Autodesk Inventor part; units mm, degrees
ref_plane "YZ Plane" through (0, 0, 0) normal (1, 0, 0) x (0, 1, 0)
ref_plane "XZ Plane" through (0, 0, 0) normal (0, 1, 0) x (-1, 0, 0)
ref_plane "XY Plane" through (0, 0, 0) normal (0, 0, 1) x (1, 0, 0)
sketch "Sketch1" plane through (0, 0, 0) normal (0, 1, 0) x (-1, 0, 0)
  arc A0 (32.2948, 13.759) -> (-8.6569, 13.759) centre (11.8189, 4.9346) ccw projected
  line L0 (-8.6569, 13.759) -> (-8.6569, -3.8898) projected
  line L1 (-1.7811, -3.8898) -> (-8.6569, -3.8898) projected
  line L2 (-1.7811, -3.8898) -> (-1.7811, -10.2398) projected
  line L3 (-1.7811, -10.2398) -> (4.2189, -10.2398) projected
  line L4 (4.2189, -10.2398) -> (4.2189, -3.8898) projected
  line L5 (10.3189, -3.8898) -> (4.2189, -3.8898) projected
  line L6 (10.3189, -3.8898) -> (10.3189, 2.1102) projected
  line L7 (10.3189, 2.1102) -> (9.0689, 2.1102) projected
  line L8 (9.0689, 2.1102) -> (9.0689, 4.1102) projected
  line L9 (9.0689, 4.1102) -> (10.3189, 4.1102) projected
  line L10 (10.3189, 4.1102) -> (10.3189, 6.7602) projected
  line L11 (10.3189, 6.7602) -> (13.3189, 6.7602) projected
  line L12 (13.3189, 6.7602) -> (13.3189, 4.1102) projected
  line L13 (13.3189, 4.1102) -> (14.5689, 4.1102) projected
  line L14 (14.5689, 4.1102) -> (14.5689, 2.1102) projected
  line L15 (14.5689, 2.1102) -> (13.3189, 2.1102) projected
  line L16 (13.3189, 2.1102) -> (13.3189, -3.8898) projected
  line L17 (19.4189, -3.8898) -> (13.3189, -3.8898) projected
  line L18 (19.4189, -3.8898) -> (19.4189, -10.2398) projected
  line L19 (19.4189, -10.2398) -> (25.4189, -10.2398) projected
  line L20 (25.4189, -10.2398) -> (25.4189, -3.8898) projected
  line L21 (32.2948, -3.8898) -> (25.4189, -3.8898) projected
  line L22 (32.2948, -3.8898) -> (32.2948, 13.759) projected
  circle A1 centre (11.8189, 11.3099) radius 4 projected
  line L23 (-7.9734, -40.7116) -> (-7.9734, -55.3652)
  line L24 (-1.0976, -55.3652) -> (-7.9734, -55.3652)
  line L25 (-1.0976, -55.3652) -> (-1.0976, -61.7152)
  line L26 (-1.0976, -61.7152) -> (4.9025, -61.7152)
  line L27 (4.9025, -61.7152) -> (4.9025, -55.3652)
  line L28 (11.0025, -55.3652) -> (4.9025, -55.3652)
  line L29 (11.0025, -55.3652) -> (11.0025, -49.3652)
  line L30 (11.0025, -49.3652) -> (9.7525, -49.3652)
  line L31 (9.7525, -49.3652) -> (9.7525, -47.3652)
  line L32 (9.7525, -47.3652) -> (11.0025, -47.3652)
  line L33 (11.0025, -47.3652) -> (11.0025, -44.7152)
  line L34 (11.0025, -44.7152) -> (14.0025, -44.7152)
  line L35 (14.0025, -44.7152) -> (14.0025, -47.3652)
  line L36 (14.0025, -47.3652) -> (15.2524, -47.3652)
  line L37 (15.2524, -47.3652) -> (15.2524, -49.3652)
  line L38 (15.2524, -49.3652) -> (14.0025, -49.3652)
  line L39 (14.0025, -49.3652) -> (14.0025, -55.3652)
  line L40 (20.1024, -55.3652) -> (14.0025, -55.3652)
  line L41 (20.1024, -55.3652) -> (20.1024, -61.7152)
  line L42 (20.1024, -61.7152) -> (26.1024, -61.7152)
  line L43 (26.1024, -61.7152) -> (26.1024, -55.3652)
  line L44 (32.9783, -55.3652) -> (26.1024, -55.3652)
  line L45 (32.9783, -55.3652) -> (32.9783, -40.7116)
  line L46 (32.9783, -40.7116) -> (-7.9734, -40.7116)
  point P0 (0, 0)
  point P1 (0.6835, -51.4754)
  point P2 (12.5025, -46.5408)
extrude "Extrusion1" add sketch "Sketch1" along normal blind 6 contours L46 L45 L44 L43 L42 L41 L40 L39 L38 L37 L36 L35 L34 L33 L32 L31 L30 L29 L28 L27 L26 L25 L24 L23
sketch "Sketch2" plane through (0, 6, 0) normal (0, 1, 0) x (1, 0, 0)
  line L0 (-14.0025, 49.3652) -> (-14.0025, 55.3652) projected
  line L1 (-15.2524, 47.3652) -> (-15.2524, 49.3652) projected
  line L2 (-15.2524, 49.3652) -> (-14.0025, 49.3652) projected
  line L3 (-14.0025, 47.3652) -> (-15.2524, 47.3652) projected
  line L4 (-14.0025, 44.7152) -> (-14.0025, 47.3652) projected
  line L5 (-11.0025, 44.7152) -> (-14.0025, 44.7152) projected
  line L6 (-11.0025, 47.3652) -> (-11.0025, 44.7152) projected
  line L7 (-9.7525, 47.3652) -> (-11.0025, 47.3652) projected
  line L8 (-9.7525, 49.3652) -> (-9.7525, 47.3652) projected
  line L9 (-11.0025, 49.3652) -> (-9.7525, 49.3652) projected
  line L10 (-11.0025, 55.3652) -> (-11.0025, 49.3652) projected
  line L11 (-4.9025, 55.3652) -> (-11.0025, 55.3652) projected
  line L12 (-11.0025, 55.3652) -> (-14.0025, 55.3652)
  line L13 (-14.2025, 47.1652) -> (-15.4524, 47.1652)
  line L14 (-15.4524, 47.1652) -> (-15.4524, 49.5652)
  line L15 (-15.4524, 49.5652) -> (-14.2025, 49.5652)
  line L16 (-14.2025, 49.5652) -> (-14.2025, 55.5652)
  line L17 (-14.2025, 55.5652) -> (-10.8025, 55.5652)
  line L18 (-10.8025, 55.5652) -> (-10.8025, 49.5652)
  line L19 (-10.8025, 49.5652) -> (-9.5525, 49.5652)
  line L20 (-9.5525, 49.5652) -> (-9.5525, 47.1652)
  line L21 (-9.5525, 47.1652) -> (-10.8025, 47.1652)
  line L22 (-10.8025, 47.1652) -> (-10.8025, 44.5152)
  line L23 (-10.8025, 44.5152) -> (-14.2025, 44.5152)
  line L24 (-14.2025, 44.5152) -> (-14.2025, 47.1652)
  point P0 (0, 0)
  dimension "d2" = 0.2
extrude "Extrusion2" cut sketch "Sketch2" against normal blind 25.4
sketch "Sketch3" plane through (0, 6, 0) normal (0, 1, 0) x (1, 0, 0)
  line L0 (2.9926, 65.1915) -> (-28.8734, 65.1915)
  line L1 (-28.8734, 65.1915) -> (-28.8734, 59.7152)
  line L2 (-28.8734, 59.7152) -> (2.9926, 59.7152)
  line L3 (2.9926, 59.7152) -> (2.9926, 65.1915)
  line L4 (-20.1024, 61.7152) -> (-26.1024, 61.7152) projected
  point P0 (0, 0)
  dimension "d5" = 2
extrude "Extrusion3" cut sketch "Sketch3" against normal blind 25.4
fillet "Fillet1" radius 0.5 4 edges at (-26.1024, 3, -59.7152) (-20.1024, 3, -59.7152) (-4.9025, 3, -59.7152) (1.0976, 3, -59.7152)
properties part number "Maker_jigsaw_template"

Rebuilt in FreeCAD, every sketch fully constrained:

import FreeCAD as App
import Part
import Sketcher
from FreeCAD import Vector
Q = App.Units.Quantity


def edges_at(feature, points):
    """Names of the edges that pass closest to the given points."""
    edges = feature.Shape.Edges
    near = lambda p: min(range(len(edges)), key=lambda i: edges[i].distToShape(Part.Vertex(*p))[0])
    return sorted({f"Edge{near(p) + 1}" for p in points})

doc = App.newDocument("Part")
body = doc.addObject("PartDesign::Body", "Body")

# Sketch on XZ plane
sketch1 = body.newObject("Sketcher::SketchObject", "Sketch")
sketch1.AttachmentSupport = (doc.getObject("XZ_Plane"), [""])
sketch1.MapMode = "FlatFace"
sketch1.addGeometry([
    Part.LineSegment(Vector(-33, -40.7, 0), Vector(8, -40.7, 0)),  # 0
    Part.LineSegment(Vector(8, -40.7, 0), Vector(8, -55.4, 0)),  # 1
    Part.LineSegment(Vector(8, -55.4, 0), Vector(1.1, -55.4, 0)),  # 2
    Part.LineSegment(Vector(1.1, -55.4, 0), Vector(1.1, -61.7, 0)),  # 3
    Part.LineSegment(Vector(1.1, -61.7, 0), Vector(-4.9, -61.7, 0)),  # 4
    Part.LineSegment(Vector(-4.9, -61.7, 0), Vector(-4.9, -55.4, 0)),  # 5
    Part.LineSegment(Vector(-4.9, -55.4, 0), Vector(-11, -55.4, 0)),  # 6
    Part.LineSegment(Vector(-11, -55.4, 0), Vector(-11, -49.4, 0)),  # 7
    Part.LineSegment(Vector(-11, -49.4, 0), Vector(-9.8, -49.4, 0)),  # 8
    Part.LineSegment(Vector(-9.8, -49.4, 0), Vector(-9.8, -47.4, 0)),  # 9
    Part.LineSegment(Vector(-9.8, -47.4, 0), Vector(-11, -47.4, 0)),  # 10
    Part.LineSegment(Vector(-11, -47.4, 0), Vector(-11, -44.7, 0)),  # 11
    Part.LineSegment(Vector(-11, -44.7, 0), Vector(-14, -44.7, 0)),  # 12
    Part.LineSegment(Vector(-14, -44.7, 0), Vector(-14, -47.4, 0)),  # 13
    Part.LineSegment(Vector(-14, -47.4, 0), Vector(-15.3, -47.4, 0)),  # 14
    Part.LineSegment(Vector(-15.3, -47.4, 0), Vector(-15.3, -49.4, 0)),  # 15
    Part.LineSegment(Vector(-15.3, -49.4, 0), Vector(-14, -49.4, 0)),  # 16
    Part.LineSegment(Vector(-14, -49.4, 0), Vector(-14, -55.4, 0)),  # 17
    Part.LineSegment(Vector(-14, -55.4, 0), Vector(-20.1, -55.4, 0)),  # 18
    Part.LineSegment(Vector(-20.1, -55.4, 0), Vector(-20.1, -61.7, 0)),  # 19
    Part.LineSegment(Vector(-20.1, -61.7, 0), Vector(-26.1, -61.7, 0)),  # 20
    Part.LineSegment(Vector(-26.1, -61.7, 0), Vector(-26.1, -55.4, 0)),  # 21
    Part.LineSegment(Vector(-26.1, -55.4, 0), Vector(-33, -55.4, 0)),  # 22
    Part.LineSegment(Vector(-33, -55.4, 0), Vector(-33, -40.7, 0)),  # 23
], False)
sketch1.addConstraint([
    Sketcher.Constraint("Coincident", 0, 2, 1, 1),
    Sketcher.Constraint("Coincident", 1, 2, 2, 1),
    Sketcher.Constraint("Coincident", 2, 2, 3, 1),
    Sketcher.Constraint("Coincident", 3, 2, 4, 1),
    Sketcher.Constraint("Coincident", 4, 2, 5, 1),
    Sketcher.Constraint("Coincident", 5, 2, 6, 1),
    Sketcher.Constraint("Coincident", 6, 2, 7, 1),
    Sketcher.Constraint("Coincident", 7, 2, 8, 1),
    Sketcher.Constraint("Coincident", 8, 2, 9, 1),
    Sketcher.Constraint("Coincident", 9, 2, 10, 1),
    Sketcher.Constraint("Coincident", 10, 2, 11, 1),
    Sketcher.Constraint("Coincident", 11, 2, 12, 1),
    Sketcher.Constraint("Coincident", 12, 2, 13, 1),
    Sketcher.Constraint("Coincident", 13, 2, 14, 1),
    Sketcher.Constraint("Coincident", 14, 2, 15, 1),
    Sketcher.Constraint("Coincident", 15, 2, 16, 1),
    Sketcher.Constraint("Coincident", 16, 2, 17, 1),
    Sketcher.Constraint("Coincident", 17, 2, 18, 1),
    Sketcher.Constraint("Coincident", 18, 2, 19, 1),
    Sketcher.Constraint("Coincident", 19, 2, 20, 1),
    Sketcher.Constraint("Coincident", 20, 2, 21, 1),
    Sketcher.Constraint("Coincident", 21, 2, 22, 1),
    Sketcher.Constraint("Coincident", 22, 2, 23, 1),
    Sketcher.Constraint("Coincident", 23, 2, 0, 1),
    Sketcher.Constraint("Horizontal", 0),
    Sketcher.Constraint("Vertical", 1),
    Sketcher.Constraint("Horizontal", 2),
    Sketcher.Constraint("Vertical", 3),
    Sketcher.Constraint("Horizontal", 4),
    Sketcher.Constraint("Vertical", 5),
    Sketcher.Constraint("Horizontal", 6),
    Sketcher.Constraint("Vertical", 7),
    Sketcher.Constraint("Horizontal", 8),
    Sketcher.Constraint("Vertical", 9),
    Sketcher.Constraint("Horizontal", 10),
    Sketcher.Constraint("Vertical", 11),
    Sketcher.Constraint("Horizontal", 12),
    Sketcher.Constraint("Vertical", 13),
    Sketcher.Constraint("Horizontal", 14),
    Sketcher.Constraint("Vertical", 15),
    Sketcher.Constraint("Horizontal", 16),
    Sketcher.Constraint("Vertical", 17),
    Sketcher.Constraint("Horizontal", 18),
    Sketcher.Constraint("Vertical", 19),
    Sketcher.Constraint("Horizontal", 20),
    Sketcher.Constraint("Vertical", 21),
    Sketcher.Constraint("Horizontal", 22),
    Sketcher.Constraint("Vertical", 23),
    Sketcher.Constraint("Horizontal", 2, 2, 5, 2),
    Sketcher.Constraint("Horizontal", 10, 2, 13, 2),
    Sketcher.Constraint("Horizontal", 8, 2, 15, 2),
    Sketcher.Constraint("Horizontal", 6, 2, 17, 2),
    Sketcher.Constraint("Horizontal", 4, 2, 19, 2),
    Sketcher.Constraint("Horizontal", 18, 2, 21, 2),
    Sketcher.Constraint("Vertical", 7, 2, 10, 2),
    Sketcher.Constraint("Vertical", 13, 2, 16, 2),
    Sketcher.Constraint("Equal", 10, 14),
    Sketcher.Constraint("Equal", 6, 18),
    Sketcher.Constraint("Equal", 4, 20),
    Sketcher.Constraint("Equal", 2, 22),
    Sketcher.Constraint("Equal", 20, 7),
    Sketcher.Constraint("DistanceX", 4, 2, 4, 1, Q("6 mm")),
    Sketcher.Constraint("DistanceX", 12, 2, 12, 1, Q("3 mm")),
    Sketcher.Constraint("DistanceY", 9, 1, 9, 2, Q("2 mm")),
    Sketcher.Constraint("DistanceX", 6, 2, 6, 1, Q("6.1 mm")),
    Sketcher.Constraint("DistanceX", 8, 1, 8, 2, Q("1.25 mm")),
    Sketcher.Constraint("DistanceY", 3, 2, 3, 1, Q("6.35 mm")),
    Sketcher.Constraint("DistanceY", 11, 1, 11, 2, Q("2.65 mm")),
    Sketcher.Constraint("DistanceX", 22, 2, 22, 1, Q("6.876 mm")),
    Sketcher.Constraint("DistanceY", 1, 2, 1, 1, Q("14.6536 mm")),
    Sketcher.Constraint("DistanceX", -1, 1, 0, 2, Q("7.9734 mm")),
    Sketcher.Constraint("DistanceY", 0, 2, -1, 1, Q("40.7116 mm")),
])
pad1 = body.newObject("PartDesign::Pad", "Pad")
pad1.Profile = sketch1
pad1.Length = 6
pad1.Reversed = True

# Sketch on XZ plane
sketch2 = body.newObject("Sketcher::SketchObject", "Sketch001")
sketch2.AttachmentSupport = (doc.getObject("XZ_Plane"), [""])
sketch2.MapMode = "FlatFace"
sketch2.AttachmentOffset = App.Placement(Vector(0, 0, -6), App.Rotation())
sketch2.addGeometry([
    Part.LineSegment(Vector(-10.8, -49.57, 0), Vector(-10.8, -55.37, 0)),  # 0
    Part.LineSegment(Vector(-10.8, -55.37, 0), Vector(-10.8, -55.57, 0)),  # 1
    Part.LineSegment(Vector(-10.8, -55.57, 0), Vector(-14.2, -55.57, 0)),  # 2
    Part.LineSegment(Vector(-14.2, -55.57, 0), Vector(-14.2, -49.57, 0)),  # 3
    Part.LineSegment(Vector(-14.2, -49.57, 0), Vector(-15.45, -49.57, 0)),  # 4
    Part.LineSegment(Vector(-15.45, -49.57, 0), Vector(-15.45, -47.17, 0)),  # 5
    Part.LineSegment(Vector(-15.45, -47.17, 0), Vector(-14.2, -47.17, 0)),  # 6
    Part.LineSegment(Vector(-14.2, -47.17, 0), Vector(-14.2, -44.52, 0)),  # 7
    Part.LineSegment(Vector(-14.2, -44.52, 0), Vector(-10.8, -44.52, 0)),  # 8
    Part.LineSegment(Vector(-10.8, -44.52, 0), Vector(-10.8, -47.17, 0)),  # 9
    Part.LineSegment(Vector(-10.8, -47.17, 0), Vector(-9.55, -47.17, 0)),  # 10
    Part.LineSegment(Vector(-9.55, -47.17, 0), Vector(-9.55, -49.57, 0)),  # 11
    Part.LineSegment(Vector(-9.55, -49.57, 0), Vector(-10.8, -49.57, 0)),  # 12
    Part.LineSegment(Vector(-15.25, -49.37, 0), Vector(-14, -49.37, 0)),  # 13
    Part.LineSegment(Vector(-14, -49.37, 0), Vector(-14, -55.37, 0)),  # 14
    Part.LineSegment(Vector(-14, -55.37, 0), Vector(-11, -55.37, 0)),  # 15
    Part.LineSegment(Vector(-11, -55.37, 0), Vector(-11, -49.37, 0)),  # 16
    Part.LineSegment(Vector(-11, -49.37, 0), Vector(-9.75, -49.37, 0)),  # 17
    Part.LineSegment(Vector(-9.75, -49.37, 0), Vector(-9.75, -47.37, 0)),  # 18
    Part.LineSegment(Vector(-9.75, -47.37, 0), Vector(-11, -47.37, 0)),  # 19
    Part.LineSegment(Vector(-11, -47.37, 0), Vector(-11, -44.72, 0)),  # 20
    Part.LineSegment(Vector(-11, -44.72, 0), Vector(-14, -44.72, 0)),  # 21
    Part.LineSegment(Vector(-14, -44.72, 0), Vector(-14, -47.37, 0)),  # 22
    Part.LineSegment(Vector(-14, -47.37, 0), Vector(-15.25, -47.37, 0)),  # 23
    Part.LineSegment(Vector(-15.25, -47.37, 0), Vector(-15.25, -49.37, 0)),  # 24
], False)
sketch2.addConstraint([
    Sketcher.Constraint("Coincident", 0, 2, 1, 1),
    Sketcher.Constraint("Coincident", 1, 2, 2, 1),
    Sketcher.Constraint("Coincident", 2, 2, 3, 1),
    Sketcher.Constraint("Coincident", 3, 2, 4, 1),
    Sketcher.Constraint("Coincident", 4, 2, 5, 1),
    Sketcher.Constraint("Coincident", 5, 2, 6, 1),
    Sketcher.Constraint("Coincident", 6, 2, 7, 1),
    Sketcher.Constraint("Coincident", 7, 2, 8, 1),
    Sketcher.Constraint("Coincident", 8, 2, 9, 1),
    Sketcher.Constraint("Coincident", 9, 2, 10, 1),
    Sketcher.Constraint("Coincident", 10, 2, 11, 1),
    Sketcher.Constraint("Coincident", 11, 2, 12, 1),
    Sketcher.Constraint("Coincident", 12, 2, 0, 1),
    Sketcher.Constraint("Coincident", 13, 2, 14, 1),
    Sketcher.Constraint("Coincident", 14, 2, 15, 1),
    Sketcher.Constraint("Coincident", 15, 2, 16, 1),
    Sketcher.Constraint("Coincident", 16, 2, 17, 1),
    Sketcher.Constraint("Coincident", 17, 2, 18, 1),
    Sketcher.Constraint("Coincident", 18, 2, 19, 1),
    Sketcher.Constraint("Coincident", 19, 2, 20, 1),
    Sketcher.Constraint("Coincident", 20, 2, 21, 1),
    Sketcher.Constraint("Coincident", 21, 2, 22, 1),
    Sketcher.Constraint("Coincident", 22, 2, 23, 1),
    Sketcher.Constraint("Coincident", 23, 2, 24, 1),
    Sketcher.Constraint("Coincident", 24, 2, 13, 1),
    Sketcher.Constraint("Vertical", 0),
    Sketcher.Constraint("Vertical", 1),
    Sketcher.Constraint("Horizontal", 2),
    Sketcher.Constraint("Vertical", 3),
    Sketcher.Constraint("Horizontal", 4),
    Sketcher.Constraint("Vertical", 5),
    Sketcher.Constraint("Horizontal", 6),
    Sketcher.Constraint("Vertical", 7),
    Sketcher.Constraint("Horizontal", 8),
    Sketcher.Constraint("Vertical", 9),
    Sketcher.Constraint("Horizontal", 10),
    Sketcher.Constraint("Vertical", 11),
    Sketcher.Constraint("Horizontal", 12),
    Sketcher.Constraint("Horizontal", 13),
    Sketcher.Constraint("Vertical", 14),
    Sketcher.Constraint("Horizontal", 15),
    Sketcher.Constraint("Vertical", 16),
    Sketcher.Constraint("Horizontal", 17),
    Sketcher.Constraint("Vertical", 18),
    Sketcher.Constraint("Horizontal", 19),
    Sketcher.Constraint("Vertical", 20),
    Sketcher.Constraint("Horizontal", 21),
    Sketcher.Constraint("Vertical", 22),
    Sketcher.Constraint("Horizontal", 23),
    Sketcher.Constraint("Vertical", 24),
    Sketcher.Constraint("Horizontal", 6, 2, 9, 2),
    Sketcher.Constraint("Horizontal", 4, 2, 11, 2),
    Sketcher.Constraint("Horizontal", 0, 2, 14, 2),
    Sketcher.Constraint("Horizontal", 13, 2, 16, 2),
    Sketcher.Constraint("Horizontal", 19, 2, 22, 2),
    Sketcher.Constraint("Vertical", 3, 2, 6, 2),
    Sketcher.Constraint("Vertical", 1, 2, 8, 2),
    Sketcher.Constraint("Vertical", 16, 2, 19, 2),
    Sketcher.Constraint("Vertical", 14, 2, 21, 2),
    Sketcher.Constraint("Equal", 6, 10),
    Sketcher.Constraint("Equal", 12, 13),
    Sketcher.Constraint("Equal", 13, 17),
    Sketcher.Constraint("Equal", 3, 14),
    Sketcher.Constraint("Equal", 9, 20),
    Sketcher.Constraint("DistanceY", 1, 2, 1, 1, Q("0.2 mm")),
    Sketcher.Constraint("DistanceX", 3, 2, 13, 2, Q("0.2 mm")),
    Sketcher.Constraint("DistanceX", 15, 2, 0, 2, Q("0.2 mm")),
    Sketcher.Constraint("DistanceY", 18, 2, 10, 2, Q("0.2 mm")),
    Sketcher.Constraint("DistanceX", 15, 1, 15, 2, Q("3 mm")),
    Sketcher.Constraint("DistanceY", 3, 1, 3, 2, Q("6 mm")),
    Sketcher.Constraint("DistanceY", 18, 1, 18, 2, Q("2 mm")),
    Sketcher.Constraint("DistanceX", 4, 2, 4, 1, Q("1.25 mm")),
    Sketcher.Constraint("DistanceY", 7, 1, 7, 2, Q("2.65 mm")),
    Sketcher.Constraint("DistanceX", 0, 2, -1, 1, Q("10.8025 mm")),
    Sketcher.Constraint("DistanceY", 0, 2, -1, 1, Q("55.3652 mm")),
])
pocket1 = body.newObject("PartDesign::Pocket", "Pocket")
pocket1.Profile = sketch2
pocket1.Length = 25.4
pocket1.Reversed = True

# Sketch on XZ plane
sketch3 = body.newObject("Sketcher::SketchObject", "Sketch002")
sketch3.AttachmentSupport = (doc.getObject("XZ_Plane"), [""])
sketch3.MapMode = "FlatFace"
sketch3.AttachmentOffset = App.Placement(Vector(0, 0, -6), App.Rotation())
sketch3.addGeometry([
    Part.LineSegment(Vector(3, -60, 0), Vector(3, -65, 0)),
    Part.LineSegment(Vector(3, -65, 0), Vector(-29, -65, 0)),
    Part.LineSegment(Vector(-29, -65, 0), Vector(-29, -60, 0)),
    Part.LineSegment(Vector(-29, -60, 0), Vector(3, -60, 0)),
], False)
sketch3.addConstraint([
    Sketcher.Constraint("Coincident", 0, 2, 1, 1),
    Sketcher.Constraint("Coincident", 1, 2, 2, 1),
    Sketcher.Constraint("Coincident", 2, 2, 3, 1),
    Sketcher.Constraint("Coincident", 3, 2, 0, 1),
    Sketcher.Constraint("Vertical", 0),
    Sketcher.Constraint("Horizontal", 1),
    Sketcher.Constraint("Vertical", 2),
    Sketcher.Constraint("Horizontal", 3),
    Sketcher.Constraint("DistanceX", 1, 2, 1, 1, Q("31.866 mm")),
    Sketcher.Constraint("DistanceY", 0, 2, 0, 1, Q("5.4763 mm")),
    Sketcher.Constraint("DistanceX", -1, 1, 0, 2, Q("2.9926 mm")),
    Sketcher.Constraint("DistanceY", 0, 2, -1, 1, Q("65.1915 mm")),
])
pocket2 = body.newObject("PartDesign::Pocket", "Pocket001")
pocket2.Profile = sketch3
pocket2.Length = 25.4
pocket2.Reversed = True
doc.recompute()

fillet = body.newObject("PartDesign::Fillet", "Fillet")
fillet.Base = (pocket2, edges_at(pocket2, [
    (-26.102, 3, -59.715),
    (-20.102, 3, -59.715),
    (-4.902, 3, -59.715),
    (1.098, 3, -59.715),
]))
fillet.Radius = 0.5

doc.recompute()
